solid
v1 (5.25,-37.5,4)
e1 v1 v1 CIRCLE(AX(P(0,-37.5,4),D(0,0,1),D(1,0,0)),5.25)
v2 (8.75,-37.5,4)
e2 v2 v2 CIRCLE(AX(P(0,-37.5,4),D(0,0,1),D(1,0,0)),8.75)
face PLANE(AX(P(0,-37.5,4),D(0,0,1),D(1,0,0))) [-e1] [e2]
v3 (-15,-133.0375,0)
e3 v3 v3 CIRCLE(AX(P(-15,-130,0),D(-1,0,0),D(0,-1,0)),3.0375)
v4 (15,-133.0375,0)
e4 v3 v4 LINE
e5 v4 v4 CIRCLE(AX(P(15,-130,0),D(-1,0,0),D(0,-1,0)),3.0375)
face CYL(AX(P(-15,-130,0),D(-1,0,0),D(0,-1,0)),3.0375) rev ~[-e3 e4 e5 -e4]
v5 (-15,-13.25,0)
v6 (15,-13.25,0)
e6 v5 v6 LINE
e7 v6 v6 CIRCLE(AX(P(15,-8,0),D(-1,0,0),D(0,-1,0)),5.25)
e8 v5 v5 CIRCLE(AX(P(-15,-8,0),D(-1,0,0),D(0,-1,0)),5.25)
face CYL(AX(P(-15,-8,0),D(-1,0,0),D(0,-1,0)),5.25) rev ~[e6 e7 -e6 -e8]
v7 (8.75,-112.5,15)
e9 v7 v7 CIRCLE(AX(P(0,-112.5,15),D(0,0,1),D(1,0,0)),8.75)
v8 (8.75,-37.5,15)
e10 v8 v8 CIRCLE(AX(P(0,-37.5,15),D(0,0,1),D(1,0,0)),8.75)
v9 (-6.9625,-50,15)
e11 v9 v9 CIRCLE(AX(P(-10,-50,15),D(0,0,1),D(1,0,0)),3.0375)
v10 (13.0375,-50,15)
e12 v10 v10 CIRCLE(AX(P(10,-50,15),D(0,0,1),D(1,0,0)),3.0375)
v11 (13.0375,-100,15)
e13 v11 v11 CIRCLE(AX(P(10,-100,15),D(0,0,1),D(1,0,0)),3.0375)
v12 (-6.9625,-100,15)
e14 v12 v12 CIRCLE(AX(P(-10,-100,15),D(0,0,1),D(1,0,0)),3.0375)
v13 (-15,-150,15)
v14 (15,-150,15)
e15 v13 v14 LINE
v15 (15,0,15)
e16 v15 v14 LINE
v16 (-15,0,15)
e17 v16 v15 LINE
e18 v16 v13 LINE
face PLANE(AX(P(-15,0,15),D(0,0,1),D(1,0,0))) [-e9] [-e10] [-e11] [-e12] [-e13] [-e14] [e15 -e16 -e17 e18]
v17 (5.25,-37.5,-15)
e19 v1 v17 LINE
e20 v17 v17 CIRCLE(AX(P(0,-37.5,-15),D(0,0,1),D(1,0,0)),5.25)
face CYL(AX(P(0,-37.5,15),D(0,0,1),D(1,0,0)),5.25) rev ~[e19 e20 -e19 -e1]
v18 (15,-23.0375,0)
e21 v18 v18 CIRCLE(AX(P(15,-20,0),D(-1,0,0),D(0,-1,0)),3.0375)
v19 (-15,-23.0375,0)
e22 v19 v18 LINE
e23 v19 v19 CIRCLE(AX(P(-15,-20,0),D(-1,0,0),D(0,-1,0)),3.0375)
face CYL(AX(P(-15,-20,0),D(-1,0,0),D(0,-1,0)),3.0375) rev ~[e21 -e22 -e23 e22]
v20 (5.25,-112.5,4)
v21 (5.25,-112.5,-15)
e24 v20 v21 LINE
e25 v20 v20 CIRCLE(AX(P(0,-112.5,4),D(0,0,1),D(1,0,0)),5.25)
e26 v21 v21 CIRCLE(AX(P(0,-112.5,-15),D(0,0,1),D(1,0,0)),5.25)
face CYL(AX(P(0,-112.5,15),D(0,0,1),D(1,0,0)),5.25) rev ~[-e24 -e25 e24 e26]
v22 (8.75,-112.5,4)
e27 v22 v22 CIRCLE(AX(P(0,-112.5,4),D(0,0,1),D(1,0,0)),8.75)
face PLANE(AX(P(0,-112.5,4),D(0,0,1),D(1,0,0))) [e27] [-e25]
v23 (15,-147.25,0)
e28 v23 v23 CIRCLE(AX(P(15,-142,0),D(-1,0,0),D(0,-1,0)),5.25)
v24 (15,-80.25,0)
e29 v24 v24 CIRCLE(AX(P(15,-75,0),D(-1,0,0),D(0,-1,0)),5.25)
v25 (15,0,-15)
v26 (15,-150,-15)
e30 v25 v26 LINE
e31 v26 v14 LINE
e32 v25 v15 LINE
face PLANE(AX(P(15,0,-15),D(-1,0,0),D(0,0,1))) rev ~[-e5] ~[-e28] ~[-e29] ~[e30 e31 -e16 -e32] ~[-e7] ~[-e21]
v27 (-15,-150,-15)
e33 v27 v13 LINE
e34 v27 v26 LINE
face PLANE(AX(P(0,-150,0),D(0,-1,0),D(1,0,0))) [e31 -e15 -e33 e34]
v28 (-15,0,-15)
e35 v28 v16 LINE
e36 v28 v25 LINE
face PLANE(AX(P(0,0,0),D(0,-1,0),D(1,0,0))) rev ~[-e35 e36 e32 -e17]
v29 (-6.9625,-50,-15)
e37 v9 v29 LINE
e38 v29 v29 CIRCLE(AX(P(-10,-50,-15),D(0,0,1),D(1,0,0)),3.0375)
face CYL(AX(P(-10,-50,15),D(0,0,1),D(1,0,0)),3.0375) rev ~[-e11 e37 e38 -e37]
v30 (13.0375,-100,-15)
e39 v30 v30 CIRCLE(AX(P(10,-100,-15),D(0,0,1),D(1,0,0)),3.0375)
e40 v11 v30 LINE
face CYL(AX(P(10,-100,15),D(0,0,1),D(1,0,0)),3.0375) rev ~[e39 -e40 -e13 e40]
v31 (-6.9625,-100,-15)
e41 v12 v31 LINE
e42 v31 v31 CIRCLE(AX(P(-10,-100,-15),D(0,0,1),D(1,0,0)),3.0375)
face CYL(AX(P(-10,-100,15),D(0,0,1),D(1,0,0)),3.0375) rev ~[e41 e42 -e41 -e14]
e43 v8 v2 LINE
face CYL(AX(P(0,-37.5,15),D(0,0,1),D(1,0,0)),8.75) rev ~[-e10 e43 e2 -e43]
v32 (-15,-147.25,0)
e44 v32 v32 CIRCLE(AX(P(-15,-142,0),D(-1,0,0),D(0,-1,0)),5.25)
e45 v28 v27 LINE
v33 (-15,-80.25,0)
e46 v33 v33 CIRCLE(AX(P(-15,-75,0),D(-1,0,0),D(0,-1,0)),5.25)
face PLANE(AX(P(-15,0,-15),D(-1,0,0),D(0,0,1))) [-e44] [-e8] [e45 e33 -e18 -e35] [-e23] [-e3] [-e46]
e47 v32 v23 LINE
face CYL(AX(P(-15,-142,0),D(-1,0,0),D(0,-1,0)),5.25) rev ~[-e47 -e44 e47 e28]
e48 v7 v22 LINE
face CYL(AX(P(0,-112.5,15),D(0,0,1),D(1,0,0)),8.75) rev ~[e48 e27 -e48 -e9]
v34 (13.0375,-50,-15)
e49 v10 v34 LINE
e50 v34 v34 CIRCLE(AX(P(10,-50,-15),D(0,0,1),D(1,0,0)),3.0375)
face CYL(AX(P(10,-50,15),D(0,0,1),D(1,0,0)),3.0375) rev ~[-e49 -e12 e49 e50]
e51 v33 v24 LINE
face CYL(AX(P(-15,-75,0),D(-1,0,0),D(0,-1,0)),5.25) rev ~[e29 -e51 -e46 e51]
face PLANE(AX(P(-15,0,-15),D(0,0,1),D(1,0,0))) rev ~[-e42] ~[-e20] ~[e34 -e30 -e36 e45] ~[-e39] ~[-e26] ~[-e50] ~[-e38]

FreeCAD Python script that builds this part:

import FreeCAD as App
import Part
import Sketcher

V = App.Vector


def add_polygon(sketch, points):
    """Adds a closed chain of lines whose ends are joined by coincident constraints."""
    first, n = sketch.GeometryCount, len(points)
    for a, b in zip(points, points[1:] + points[:1]):
        sketch.addGeometry(Part.LineSegment(App.Vector(*a, 0), App.Vector(*b, 0)), False)
    for i in range(n):
        sketch.addConstraint(Sketcher.Constraint("Coincident", first + i, 2, first + (i + 1) % n, 1))

doc = App.newDocument("Part")
body = doc.addObject("PartDesign::Body", "Body")

# Sketch on XZ plane
sketch1 = doc.addObject("Sketcher::SketchObject", "Sketch")
body.addObject(sketch1)
sketch1.AttachmentSupport = (doc.XZ_Plane, [""])
sketch1.MapMode = "FlatFace"
add_polygon(sketch1, [(-15, 15), (-15, -15), (15, -15), (15, 15)])  # lines 0-3
sketch1.addConstraint([
    Sketcher.Constraint("Vertical", 0),
    Sketcher.Constraint("Horizontal", 1),
    Sketcher.Constraint("Vertical", 2),
    Sketcher.Constraint("Horizontal", 3),
    Sketcher.Constraint("Symmetric", 0, 2, 2, 2, -1, 1),
    Sketcher.Constraint("Equal", 3, 0),
    Sketcher.Constraint("DistanceX", 1, 1, 1, 2, 30.0),
])
pad1 = doc.addObject("PartDesign::Pad", "Pad")
body.addObject(pad1)
pad1.Profile = sketch1
pad1.Length = 150

# Sketch on YZ plane
sketch2 = doc.addObject("Sketcher::SketchObject", "Sketch001")
body.addObject(sketch2)
sketch2.AttachmentSupport = (doc.YZ_Plane, [""])
sketch2.MapMode = "FlatFace"
sketch2.AttachmentOffset = App.Placement(V(0, 0, -15), App.Rotation())
sketch2.addGeometry([
    Part.Circle(V(-8, 0, 0), V(0, 0, 1), 5),
    Part.Circle(V(-75, 0, 0), V(0, 0, 1), 5),
    Part.Circle(V(-142, 0, 0), V(0, 0, 1), 5),
], False)
sketch2.addConstraint([
    Sketcher.Constraint("Equal", 0, 1),
    Sketcher.Constraint("Equal", 1, 2),
    Sketcher.Constraint("PointOnObject", 0, 3, -1),
    Sketcher.Constraint("PointOnObject", 1, 3, -1),
    Sketcher.Constraint("PointOnObject", 2, 3, -1),
    Sketcher.Constraint("Diameter", 0, 10.5),
    Sketcher.Constraint("DistanceX", 0, 3, -1, 1, 8.0),
    Sketcher.Constraint("DistanceX", 1, 3, -1, 1, 75.0),
    Sketcher.Constraint("DistanceX", 2, 3, -1, 1, 142.0),
])
pocket1 = doc.addObject("PartDesign::Pocket", "Pocket")
body.addObject(pocket1)
pocket1.Profile = sketch2
pocket1.Type = "ThroughAll"
pocket1.Reversed = True

# Sketch on XY plane
sketch3 = doc.addObject("Sketcher::SketchObject", "Sketch002")
body.addObject(sketch3)
sketch3.AttachmentSupport = (doc.XY_Plane, [""])
sketch3.MapMode = "FlatFace"
sketch3.AttachmentOffset = App.Placement(V(0, 0, 15), App.Rotation())
sketch3.addGeometry([
    Part.Circle(V(0, -37.5, 0), V(0, 0, 1), 5.2),  # 0
    Part.Circle(V(10, -50, 0), V(0, 0, 1), 3),  # 1
    Part.Circle(V(0, -112.5, 0), V(0, 0, 1), 5.2),  # 2
    Part.Circle(V(10, -100, 0), V(0, 0, 1), 3),  # 3
    Part.Circle(V(-10, -50, 0), V(0, 0, 1), 3),  # 4
    Part.Circle(V(-10, -100, 0), V(0, 0, 1), 3),  # 5
], False)
sketch3.addConstraint([
    Sketcher.Constraint("Equal", 0, 2),
    Sketcher.Constraint("Equal", 1, 3),
    Sketcher.Constraint("Equal", 3, 4),
    Sketcher.Constraint("Equal", 4, 5),
    Sketcher.Constraint("Symmetric", 1, 3, 4, 3, -2),
    Sketcher.Constraint("Symmetric", 3, 3, 5, 3, -2),
    Sketcher.Constraint("PointOnObject", 0, 3, -2),
    Sketcher.Constraint("PointOnObject", 2, 3, -2),
    Sketcher.Constraint("Vertical", 1, 3, 3, 3),
    Sketcher.Constraint("Diameter", 0, 10.5),
    Sketcher.Constraint("Diameter", 1, 6.075),
    Sketcher.Constraint("DistanceX", -1, 1, 1, 3, 10.0),
    Sketcher.Constraint("DistanceY", 1, 3, -1, 1, 50.0),
    Sketcher.Constraint("DistanceY", 3, 3, -1, 1, 100.0),
    Sketcher.Constraint("DistanceY", 2, 3, 0, 3, 75.0),
    Sketcher.Constraint("DistanceY", 0, 3, -1, 1, 37.5),
])
pocket2 = doc.addObject("PartDesign::Pocket", "Pocket001")
body.addObject(pocket2)
pocket2.Profile = sketch3
pocket2.Type = "ThroughAll"

# Sketch on XY plane
sketch4 = doc.addObject("Sketcher::SketchObject", "Sketch003")
body.addObject(sketch4)
sketch4.AttachmentSupport = (doc.XY_Plane, [""])
sketch4.MapMode = "FlatFace"
sketch4.AttachmentOffset = App.Placement(V(0, 0, 15), App.Rotation())
sketch4.addGeometry([
    Part.Circle(V(0, -38, 0), V(0, 0, 1), 9),
    Part.Circle(V(0, -112, 0), V(0, 0, 1), 9),
], False)
sketch4.addConstraint([
    Sketcher.Constraint("Equal", 0, 1),
    Sketcher.Constraint("PointOnObject", 0, 3, -2),
    Sketcher.Constraint("PointOnObject", 1, 3, -2),
    Sketcher.Constraint("Diameter", 0, 17.5),
    Sketcher.Constraint("DistanceY", 1, 3, 0, 3, 75.0),
    Sketcher.Constraint("DistanceY", 0, 3, -1, 1, 37.5),
])
pocket3 = doc.addObject("PartDesign::Pocket", "Pocket002")
body.addObject(pocket3)
pocket3.Profile = sketch4
pocket3.Length = 11

# Sketch on YZ plane
sketch5 = doc.addObject("Sketcher::SketchObject", "Sketch004")
body.addObject(sketch5)
sketch5.AttachmentSupport = (doc.YZ_Plane, [""])
sketch5.MapMode = "FlatFace"
sketch5.AttachmentOffset = App.Placement(V(0, 0, -15), App.Rotation())
sketch5.addGeometry([
    Part.Circle(V(-20, 0, 0), V(0, 0, 1), 3),
    Part.Circle(V(-130, 0, 0), V(0, 0, 1), 3),
], False)
sketch5.addConstraint([
    Sketcher.Constraint("Equal", 0, 1),
    Sketcher.Constraint("PointOnObject", 0, 3, -1),
    Sketcher.Constraint("PointOnObject", 1, 3, -1),
    Sketcher.Constraint("Diameter", 0, 6.075),
    Sketcher.Constraint("DistanceX", 0, 3, -1, 1, 20.0),
    Sketcher.Constraint("DistanceX", 1, 3, -1, 1, 130.0),
])
pocket4 = doc.addObject("PartDesign::Pocket", "Pocket003")
body.addObject(pocket4)
pocket4.Profile = sketch5
pocket4.Type = "ThroughAll"
pocket4.Reversed = True

doc.recompute()
